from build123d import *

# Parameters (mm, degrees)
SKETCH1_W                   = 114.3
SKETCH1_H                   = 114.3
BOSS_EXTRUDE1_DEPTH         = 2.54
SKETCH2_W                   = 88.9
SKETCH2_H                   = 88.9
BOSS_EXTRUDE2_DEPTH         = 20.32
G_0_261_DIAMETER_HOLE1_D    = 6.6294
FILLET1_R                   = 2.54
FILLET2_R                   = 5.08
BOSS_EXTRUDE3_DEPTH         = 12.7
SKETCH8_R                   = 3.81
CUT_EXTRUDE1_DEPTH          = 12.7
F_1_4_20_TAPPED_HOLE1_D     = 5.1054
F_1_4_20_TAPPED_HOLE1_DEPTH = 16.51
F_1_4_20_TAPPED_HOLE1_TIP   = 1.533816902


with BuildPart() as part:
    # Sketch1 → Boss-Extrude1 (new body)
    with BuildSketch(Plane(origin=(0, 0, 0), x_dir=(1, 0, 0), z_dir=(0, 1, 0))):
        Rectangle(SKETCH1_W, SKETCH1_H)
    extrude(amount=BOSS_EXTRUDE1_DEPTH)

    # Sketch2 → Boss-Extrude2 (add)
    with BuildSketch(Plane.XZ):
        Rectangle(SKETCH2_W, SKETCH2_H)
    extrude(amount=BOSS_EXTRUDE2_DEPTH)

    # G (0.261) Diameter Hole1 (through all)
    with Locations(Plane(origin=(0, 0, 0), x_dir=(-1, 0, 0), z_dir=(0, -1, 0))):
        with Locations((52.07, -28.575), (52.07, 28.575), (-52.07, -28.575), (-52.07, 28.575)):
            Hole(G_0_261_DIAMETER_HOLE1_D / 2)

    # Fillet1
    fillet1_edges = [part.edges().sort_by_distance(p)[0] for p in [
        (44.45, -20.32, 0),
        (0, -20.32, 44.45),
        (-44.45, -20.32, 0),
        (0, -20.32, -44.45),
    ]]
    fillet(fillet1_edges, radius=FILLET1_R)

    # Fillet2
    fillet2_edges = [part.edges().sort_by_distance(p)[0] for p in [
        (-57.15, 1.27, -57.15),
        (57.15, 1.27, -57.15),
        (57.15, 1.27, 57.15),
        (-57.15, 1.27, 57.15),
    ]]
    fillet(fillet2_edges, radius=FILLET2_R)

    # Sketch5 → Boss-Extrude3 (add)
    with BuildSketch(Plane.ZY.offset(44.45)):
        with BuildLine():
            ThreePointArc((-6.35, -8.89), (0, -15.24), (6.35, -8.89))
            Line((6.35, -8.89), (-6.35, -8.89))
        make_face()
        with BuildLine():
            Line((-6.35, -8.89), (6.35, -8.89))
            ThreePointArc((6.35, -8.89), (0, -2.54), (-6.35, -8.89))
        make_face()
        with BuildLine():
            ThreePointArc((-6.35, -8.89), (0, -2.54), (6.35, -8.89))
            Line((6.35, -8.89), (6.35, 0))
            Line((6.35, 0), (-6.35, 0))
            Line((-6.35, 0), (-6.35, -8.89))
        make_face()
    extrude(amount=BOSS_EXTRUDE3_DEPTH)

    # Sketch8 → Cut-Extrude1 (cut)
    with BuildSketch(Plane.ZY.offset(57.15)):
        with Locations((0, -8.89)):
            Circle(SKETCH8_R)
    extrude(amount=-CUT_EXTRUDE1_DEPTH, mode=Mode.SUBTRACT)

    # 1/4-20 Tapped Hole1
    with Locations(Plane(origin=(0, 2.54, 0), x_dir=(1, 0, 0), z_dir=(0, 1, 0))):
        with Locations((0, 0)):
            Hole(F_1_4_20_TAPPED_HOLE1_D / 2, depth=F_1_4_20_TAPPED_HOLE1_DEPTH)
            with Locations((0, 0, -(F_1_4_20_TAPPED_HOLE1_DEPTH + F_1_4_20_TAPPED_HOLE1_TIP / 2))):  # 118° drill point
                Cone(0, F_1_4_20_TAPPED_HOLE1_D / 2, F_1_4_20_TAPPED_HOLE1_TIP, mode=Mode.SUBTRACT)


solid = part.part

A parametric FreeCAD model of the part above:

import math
import FreeCAD as App
import Part
import Sketcher
from FreeCAD import Vector
Q = App.Units.Quantity


def edges_at(feature, points):
    """Names of the edges that pass closest to the given points."""
    edges = feature.Shape.Edges
    near = lambda p: min(range(len(edges)), key=lambda i: edges[i].distToShape(Part.Vertex(*p))[0])
    return sorted({f"Edge{near(p) + 1}" for p in points})


def add_polygon(sketch, points):
    """Adds a closed chain of lines whose ends are joined by coincident constraints."""
    first, n = sketch.GeometryCount, len(points)
    for a, b in zip(points, points[1:] + points[:1]):
        sketch.addGeometry(Part.LineSegment(App.Vector(*a, 0), App.Vector(*b, 0)), False)
    for i in range(n):
        sketch.addConstraint(Sketcher.Constraint("Coincident", first + i, 2, first + (i + 1) % n, 1))

doc = App.newDocument("Part")
params = doc.addObject("Spreadsheet::Sheet", "Params")
for row, (alias, value) in enumerate([
    ("sketch1_width", "4.5 in"),
    ("pad1_length", "0.1 in"),
    ("sketch2_width", "3.5 in"),
    ("pad2_length", "0.8 in"),
    ("sketch3_diameter", "0.261 in"),
    ("hole_diameter", "0.261 in"),
    ("fillet_radius", "0.1 in"),
    ("fillet2_radius", "0.2 in"),
    ("sketch4_radius", "0.25 in"),
    ("sketch4_width", "0.35 in"),
    ("pad3_length", "0.5 in"),
    ("sketch5_diameter", "0.3 in"),
    ("pocket1_length", "0.5 in"),
    ("sketch6_diameter", "0.201 in"),
    ("hole2_diameter", "0.201 in"),
    ("hole2_depth", "0.65 in"),
], start=1):
    params.set(f"A{row}", alias)
    params.set(f"B{row}", "=" + value)
    params.setAlias(f"B{row}", alias)

body = doc.addObject("PartDesign::Body", "Body")

sketch1 = body.newObject("Sketcher::SketchObject", "Sketch")
sketch1.AttachmentSupport = (doc.getObject("XZ_Plane"), [""])
sketch1.MapMode = "FlatFace"
add_polygon(sketch1, [(-57.15, -57.15), (-57.15, 57.15), (57.15, 57.15), (57.15, -57.15)])
sketch1.addConstraint([
    Sketcher.Constraint("Vertical", 0),
    Sketcher.Constraint("Horizontal", 1),
    Sketcher.Constraint("Vertical", 2),
    Sketcher.Constraint("Horizontal", 3),
    Sketcher.Constraint("Symmetric", 0, 2, 2, 2, -1, 1),
    Sketcher.Constraint("Equal", 3, 0),
    Sketcher.Constraint("DistanceX", 1, 1, 1, 2, Q("4.5 in")),
])
sketch1.setExpression("Constraints[10]", "Params.sketch1_width")
pad1 = body.newObject("PartDesign::Pad", "Pad")
pad1.Profile = sketch1
pad1.setExpression("Length", "Params.pad1_length")
pad1.Reversed = True

sketch2 = body.newObject("Sketcher::SketchObject", "Sketch001")
sketch2.AttachmentSupport = (doc.getObject("XZ_Plane"), [""])
sketch2.MapMode = "FlatFace"
add_polygon(sketch2, [(-44.45, 44.45), (-44.45, -44.45), (44.45, -44.45), (44.45, 44.45)])
sketch2.addConstraint([
    Sketcher.Constraint("Vertical", 0),
    Sketcher.Constraint("Horizontal", 1),
    Sketcher.Constraint("Vertical", 2),
    Sketcher.Constraint("Horizontal", 3),
    Sketcher.Constraint("Symmetric", 0, 2, 2, 2, -1, 1),
    Sketcher.Constraint("Equal", 3, 0),
    Sketcher.Constraint("DistanceX", 1, 1, 1, 2, Q("3.5 in")),
])
sketch2.setExpression("Constraints[10]", "Params.sketch2_width")
pad2 = body.newObject("PartDesign::Pad", "Pad001")
pad2.Profile = sketch2
pad2.setExpression("Length", "Params.pad2_length")

sketch3 = body.newObject("Sketcher::SketchObject", "Sketch002")
sketch3.AttachmentSupport = (doc.getObject("XZ_Plane"), [""])
sketch3.MapMode = "FlatFace"
sketch3.addGeometry([
    Part.Circle(Vector(-52.07, 28.575, 0), Vector(0, 0, 1), 3.3147),
    Part.Circle(Vector(-52.07, -28.575, 0), Vector(0, 0, 1), 3.3147),
    Part.Circle(Vector(52.07, 28.575, 0), Vector(0, 0, 1), 3.3147),
    Part.Circle(Vector(52.07, -28.575, 0), Vector(0, 0, 1), 3.3147),
], False)
sketch3.addConstraint([
    Sketcher.Constraint("Equal", 0, 1),
    Sketcher.Constraint("Equal", 1, 2),
    Sketcher.Constraint("Equal", 2, 3),
    Sketcher.Constraint("Symmetric", 1, 3, 2, 3, -1, 1),
    Sketcher.Constraint("Symmetric", 0, 3, 3, 3, -1, 1),
    Sketcher.Constraint("Symmetric", 0, 3, 2, 3, -2),
    Sketcher.Constraint("Diameter", 0, Q("0.261 in")),
    Sketcher.Constraint("DistanceX", 0, 3, 2, 3, Q("4.1 in")),
    Sketcher.Constraint("DistanceY", 1, 3, 0, 3, Q("2.25 in")),
])
sketch3.setExpression("Constraints[6]", "Params.sketch3_diameter")
doc.recompute()
hole = body.newObject("PartDesign::Hole", "Hole")
hole.Profile = sketch3
hole.ThreadType = "None"
hole.setExpression("Diameter", "Params.hole_diameter")
hole.DepthType = "ThroughAll"
doc.recompute()

fillet = body.newObject("PartDesign::Fillet", "Fillet")
fillet.Base = (hole, edges_at(hole, [
    (44.45, -20.32, 0),
    (0, -20.32, 44.45),
    (-44.45, -20.32, 0),
    (0, -20.32, -44.45),
]))
fillet.setExpression("Radius", "Params.fillet_radius")
doc.recompute()

fillet2 = body.newObject("PartDesign::Fillet", "Fillet001")
fillet2.Base = (fillet, edges_at(fillet, [
    (-57.15, 1.27, -57.15),
    (57.15, 1.27, -57.15),
    (57.15, 1.27, 57.15),
    (-57.15, 1.27, 57.15),
]))
fillet2.setExpression("Radius", "Params.fillet2_radius")

sketch4 = body.newObject("Sketcher::SketchObject", "Sketch003")
sketch4.AttachmentSupport = (doc.getObject("YZ_Plane"), [""])
sketch4.MapMode = "FlatFace"
sketch4.AttachmentOffset = App.Placement(Vector(0, 0, -1.75 * 25.4), App.Rotation())
sketch4.addGeometry([
    Part.ArcOfCircle(Part.Circle(Vector(-8.89, 0, 0), Vector(0, 0, 1), 6.35), math.radians(90), math.radians(270)),
    Part.LineSegment(Vector(-8.89, 6.35, 0), Vector(0, 6.35, 0)),
    Part.LineSegment(Vector(0, 6.35, 0), Vector(0, -6.35, 0)),
    Part.LineSegment(Vector(0, -6.35, 0), Vector(-8.89, -6.35, 0)),
], False)
sketch4.addConstraint([
    Sketcher.Constraint("Tangent", 0, 1, 1, 1),
    Sketcher.Constraint("Coincident", 1, 2, 2, 1),
    Sketcher.Constraint("Coincident", 2, 2, 3, 1),
    Sketcher.Constraint("Tangent", 3, 2, 0, 2),
    Sketcher.Constraint("Horizontal", 1),
    Sketcher.Constraint("Vertical", 2),
    Sketcher.Constraint("Horizontal", 3),
    Sketcher.Constraint("Symmetric", 1, 2, 2, 2, -1, 1),
    Sketcher.Constraint("Radius", 0, Q("0.25 in")),
    Sketcher.Constraint("DistanceX", 1, 1, 1, 2, Q("0.35 in")),
])
sketch4.setExpression("Constraints[8]", "Params.sketch4_radius")
sketch4.setExpression("Constraints[9]", "Params.sketch4_width")
pad3 = body.newObject("PartDesign::Pad", "Pad002")
pad3.Profile = sketch4
pad3.setExpression("Length", "Params.pad3_length")
pad3.Reversed = True

sketch5 = body.newObject("Sketcher::SketchObject", "Sketch004")
sketch5.AttachmentSupport = (doc.getObject("YZ_Plane"), [""])
sketch5.MapMode = "FlatFace"
sketch5.AttachmentOffset = App.Placement(Vector(0, 0, -2.25 * 25.4), App.Rotation())
sketch5.addGeometry(Part.Circle(Vector(-8.89, 0, 0), Vector(0, 0, 1), 3.81), False)
sketch5.addConstraint([
    Sketcher.Constraint("PointOnObject", 0, 3, -1),
    Sketcher.Constraint("Diameter", 0, Q("0.3 in")),
    Sketcher.Constraint("DistanceX", 0, 3, -1, 1, Q("0.35 in")),
])
sketch5.setExpression("Constraints[1]", "Params.sketch5_diameter")
pocket1 = body.newObject("PartDesign::Pocket", "Pocket")
pocket1.Profile = sketch5
pocket1.setExpression("Length", "Params.pocket1_length")
pocket1.Reversed = True

sketch6 = body.newObject("Sketcher::SketchObject", "Sketch005")
sketch6.AttachmentSupport = (doc.getObject("XZ_Plane"), [""])
sketch6.MapMode = "FlatFace"
sketch6.AttachmentOffset = App.Placement(Vector(0, 0, -0.1 * 25.4), App.Rotation())
sketch6.addGeometry(Part.Circle(Vector(0, 0, 0), Vector(0, 0, 1), 2.5527), False)
sketch6.addConstraint([
    Sketcher.Constraint("Coincident", 0, 3, -1, 1),
    Sketcher.Constraint("Diameter", 0, Q("0.201 in")),
])
sketch6.setExpression("Constraints[1]", "Params.sketch6_diameter")
doc.recompute()
hole2 = body.newObject("PartDesign::Hole", "Hole001")
hole2.Profile = sketch6
hole2.ThreadType = "None"
hole2.setExpression("Diameter", "Params.hole2_diameter")
hole2.DepthType = "Dimension"
hole2.setExpression("Depth", "Params.hole2_depth")
hole2.DrillPoint = "Angled"
hole2.DrillPointAngle = 118
hole2.Reversed = True

doc.recompute()
